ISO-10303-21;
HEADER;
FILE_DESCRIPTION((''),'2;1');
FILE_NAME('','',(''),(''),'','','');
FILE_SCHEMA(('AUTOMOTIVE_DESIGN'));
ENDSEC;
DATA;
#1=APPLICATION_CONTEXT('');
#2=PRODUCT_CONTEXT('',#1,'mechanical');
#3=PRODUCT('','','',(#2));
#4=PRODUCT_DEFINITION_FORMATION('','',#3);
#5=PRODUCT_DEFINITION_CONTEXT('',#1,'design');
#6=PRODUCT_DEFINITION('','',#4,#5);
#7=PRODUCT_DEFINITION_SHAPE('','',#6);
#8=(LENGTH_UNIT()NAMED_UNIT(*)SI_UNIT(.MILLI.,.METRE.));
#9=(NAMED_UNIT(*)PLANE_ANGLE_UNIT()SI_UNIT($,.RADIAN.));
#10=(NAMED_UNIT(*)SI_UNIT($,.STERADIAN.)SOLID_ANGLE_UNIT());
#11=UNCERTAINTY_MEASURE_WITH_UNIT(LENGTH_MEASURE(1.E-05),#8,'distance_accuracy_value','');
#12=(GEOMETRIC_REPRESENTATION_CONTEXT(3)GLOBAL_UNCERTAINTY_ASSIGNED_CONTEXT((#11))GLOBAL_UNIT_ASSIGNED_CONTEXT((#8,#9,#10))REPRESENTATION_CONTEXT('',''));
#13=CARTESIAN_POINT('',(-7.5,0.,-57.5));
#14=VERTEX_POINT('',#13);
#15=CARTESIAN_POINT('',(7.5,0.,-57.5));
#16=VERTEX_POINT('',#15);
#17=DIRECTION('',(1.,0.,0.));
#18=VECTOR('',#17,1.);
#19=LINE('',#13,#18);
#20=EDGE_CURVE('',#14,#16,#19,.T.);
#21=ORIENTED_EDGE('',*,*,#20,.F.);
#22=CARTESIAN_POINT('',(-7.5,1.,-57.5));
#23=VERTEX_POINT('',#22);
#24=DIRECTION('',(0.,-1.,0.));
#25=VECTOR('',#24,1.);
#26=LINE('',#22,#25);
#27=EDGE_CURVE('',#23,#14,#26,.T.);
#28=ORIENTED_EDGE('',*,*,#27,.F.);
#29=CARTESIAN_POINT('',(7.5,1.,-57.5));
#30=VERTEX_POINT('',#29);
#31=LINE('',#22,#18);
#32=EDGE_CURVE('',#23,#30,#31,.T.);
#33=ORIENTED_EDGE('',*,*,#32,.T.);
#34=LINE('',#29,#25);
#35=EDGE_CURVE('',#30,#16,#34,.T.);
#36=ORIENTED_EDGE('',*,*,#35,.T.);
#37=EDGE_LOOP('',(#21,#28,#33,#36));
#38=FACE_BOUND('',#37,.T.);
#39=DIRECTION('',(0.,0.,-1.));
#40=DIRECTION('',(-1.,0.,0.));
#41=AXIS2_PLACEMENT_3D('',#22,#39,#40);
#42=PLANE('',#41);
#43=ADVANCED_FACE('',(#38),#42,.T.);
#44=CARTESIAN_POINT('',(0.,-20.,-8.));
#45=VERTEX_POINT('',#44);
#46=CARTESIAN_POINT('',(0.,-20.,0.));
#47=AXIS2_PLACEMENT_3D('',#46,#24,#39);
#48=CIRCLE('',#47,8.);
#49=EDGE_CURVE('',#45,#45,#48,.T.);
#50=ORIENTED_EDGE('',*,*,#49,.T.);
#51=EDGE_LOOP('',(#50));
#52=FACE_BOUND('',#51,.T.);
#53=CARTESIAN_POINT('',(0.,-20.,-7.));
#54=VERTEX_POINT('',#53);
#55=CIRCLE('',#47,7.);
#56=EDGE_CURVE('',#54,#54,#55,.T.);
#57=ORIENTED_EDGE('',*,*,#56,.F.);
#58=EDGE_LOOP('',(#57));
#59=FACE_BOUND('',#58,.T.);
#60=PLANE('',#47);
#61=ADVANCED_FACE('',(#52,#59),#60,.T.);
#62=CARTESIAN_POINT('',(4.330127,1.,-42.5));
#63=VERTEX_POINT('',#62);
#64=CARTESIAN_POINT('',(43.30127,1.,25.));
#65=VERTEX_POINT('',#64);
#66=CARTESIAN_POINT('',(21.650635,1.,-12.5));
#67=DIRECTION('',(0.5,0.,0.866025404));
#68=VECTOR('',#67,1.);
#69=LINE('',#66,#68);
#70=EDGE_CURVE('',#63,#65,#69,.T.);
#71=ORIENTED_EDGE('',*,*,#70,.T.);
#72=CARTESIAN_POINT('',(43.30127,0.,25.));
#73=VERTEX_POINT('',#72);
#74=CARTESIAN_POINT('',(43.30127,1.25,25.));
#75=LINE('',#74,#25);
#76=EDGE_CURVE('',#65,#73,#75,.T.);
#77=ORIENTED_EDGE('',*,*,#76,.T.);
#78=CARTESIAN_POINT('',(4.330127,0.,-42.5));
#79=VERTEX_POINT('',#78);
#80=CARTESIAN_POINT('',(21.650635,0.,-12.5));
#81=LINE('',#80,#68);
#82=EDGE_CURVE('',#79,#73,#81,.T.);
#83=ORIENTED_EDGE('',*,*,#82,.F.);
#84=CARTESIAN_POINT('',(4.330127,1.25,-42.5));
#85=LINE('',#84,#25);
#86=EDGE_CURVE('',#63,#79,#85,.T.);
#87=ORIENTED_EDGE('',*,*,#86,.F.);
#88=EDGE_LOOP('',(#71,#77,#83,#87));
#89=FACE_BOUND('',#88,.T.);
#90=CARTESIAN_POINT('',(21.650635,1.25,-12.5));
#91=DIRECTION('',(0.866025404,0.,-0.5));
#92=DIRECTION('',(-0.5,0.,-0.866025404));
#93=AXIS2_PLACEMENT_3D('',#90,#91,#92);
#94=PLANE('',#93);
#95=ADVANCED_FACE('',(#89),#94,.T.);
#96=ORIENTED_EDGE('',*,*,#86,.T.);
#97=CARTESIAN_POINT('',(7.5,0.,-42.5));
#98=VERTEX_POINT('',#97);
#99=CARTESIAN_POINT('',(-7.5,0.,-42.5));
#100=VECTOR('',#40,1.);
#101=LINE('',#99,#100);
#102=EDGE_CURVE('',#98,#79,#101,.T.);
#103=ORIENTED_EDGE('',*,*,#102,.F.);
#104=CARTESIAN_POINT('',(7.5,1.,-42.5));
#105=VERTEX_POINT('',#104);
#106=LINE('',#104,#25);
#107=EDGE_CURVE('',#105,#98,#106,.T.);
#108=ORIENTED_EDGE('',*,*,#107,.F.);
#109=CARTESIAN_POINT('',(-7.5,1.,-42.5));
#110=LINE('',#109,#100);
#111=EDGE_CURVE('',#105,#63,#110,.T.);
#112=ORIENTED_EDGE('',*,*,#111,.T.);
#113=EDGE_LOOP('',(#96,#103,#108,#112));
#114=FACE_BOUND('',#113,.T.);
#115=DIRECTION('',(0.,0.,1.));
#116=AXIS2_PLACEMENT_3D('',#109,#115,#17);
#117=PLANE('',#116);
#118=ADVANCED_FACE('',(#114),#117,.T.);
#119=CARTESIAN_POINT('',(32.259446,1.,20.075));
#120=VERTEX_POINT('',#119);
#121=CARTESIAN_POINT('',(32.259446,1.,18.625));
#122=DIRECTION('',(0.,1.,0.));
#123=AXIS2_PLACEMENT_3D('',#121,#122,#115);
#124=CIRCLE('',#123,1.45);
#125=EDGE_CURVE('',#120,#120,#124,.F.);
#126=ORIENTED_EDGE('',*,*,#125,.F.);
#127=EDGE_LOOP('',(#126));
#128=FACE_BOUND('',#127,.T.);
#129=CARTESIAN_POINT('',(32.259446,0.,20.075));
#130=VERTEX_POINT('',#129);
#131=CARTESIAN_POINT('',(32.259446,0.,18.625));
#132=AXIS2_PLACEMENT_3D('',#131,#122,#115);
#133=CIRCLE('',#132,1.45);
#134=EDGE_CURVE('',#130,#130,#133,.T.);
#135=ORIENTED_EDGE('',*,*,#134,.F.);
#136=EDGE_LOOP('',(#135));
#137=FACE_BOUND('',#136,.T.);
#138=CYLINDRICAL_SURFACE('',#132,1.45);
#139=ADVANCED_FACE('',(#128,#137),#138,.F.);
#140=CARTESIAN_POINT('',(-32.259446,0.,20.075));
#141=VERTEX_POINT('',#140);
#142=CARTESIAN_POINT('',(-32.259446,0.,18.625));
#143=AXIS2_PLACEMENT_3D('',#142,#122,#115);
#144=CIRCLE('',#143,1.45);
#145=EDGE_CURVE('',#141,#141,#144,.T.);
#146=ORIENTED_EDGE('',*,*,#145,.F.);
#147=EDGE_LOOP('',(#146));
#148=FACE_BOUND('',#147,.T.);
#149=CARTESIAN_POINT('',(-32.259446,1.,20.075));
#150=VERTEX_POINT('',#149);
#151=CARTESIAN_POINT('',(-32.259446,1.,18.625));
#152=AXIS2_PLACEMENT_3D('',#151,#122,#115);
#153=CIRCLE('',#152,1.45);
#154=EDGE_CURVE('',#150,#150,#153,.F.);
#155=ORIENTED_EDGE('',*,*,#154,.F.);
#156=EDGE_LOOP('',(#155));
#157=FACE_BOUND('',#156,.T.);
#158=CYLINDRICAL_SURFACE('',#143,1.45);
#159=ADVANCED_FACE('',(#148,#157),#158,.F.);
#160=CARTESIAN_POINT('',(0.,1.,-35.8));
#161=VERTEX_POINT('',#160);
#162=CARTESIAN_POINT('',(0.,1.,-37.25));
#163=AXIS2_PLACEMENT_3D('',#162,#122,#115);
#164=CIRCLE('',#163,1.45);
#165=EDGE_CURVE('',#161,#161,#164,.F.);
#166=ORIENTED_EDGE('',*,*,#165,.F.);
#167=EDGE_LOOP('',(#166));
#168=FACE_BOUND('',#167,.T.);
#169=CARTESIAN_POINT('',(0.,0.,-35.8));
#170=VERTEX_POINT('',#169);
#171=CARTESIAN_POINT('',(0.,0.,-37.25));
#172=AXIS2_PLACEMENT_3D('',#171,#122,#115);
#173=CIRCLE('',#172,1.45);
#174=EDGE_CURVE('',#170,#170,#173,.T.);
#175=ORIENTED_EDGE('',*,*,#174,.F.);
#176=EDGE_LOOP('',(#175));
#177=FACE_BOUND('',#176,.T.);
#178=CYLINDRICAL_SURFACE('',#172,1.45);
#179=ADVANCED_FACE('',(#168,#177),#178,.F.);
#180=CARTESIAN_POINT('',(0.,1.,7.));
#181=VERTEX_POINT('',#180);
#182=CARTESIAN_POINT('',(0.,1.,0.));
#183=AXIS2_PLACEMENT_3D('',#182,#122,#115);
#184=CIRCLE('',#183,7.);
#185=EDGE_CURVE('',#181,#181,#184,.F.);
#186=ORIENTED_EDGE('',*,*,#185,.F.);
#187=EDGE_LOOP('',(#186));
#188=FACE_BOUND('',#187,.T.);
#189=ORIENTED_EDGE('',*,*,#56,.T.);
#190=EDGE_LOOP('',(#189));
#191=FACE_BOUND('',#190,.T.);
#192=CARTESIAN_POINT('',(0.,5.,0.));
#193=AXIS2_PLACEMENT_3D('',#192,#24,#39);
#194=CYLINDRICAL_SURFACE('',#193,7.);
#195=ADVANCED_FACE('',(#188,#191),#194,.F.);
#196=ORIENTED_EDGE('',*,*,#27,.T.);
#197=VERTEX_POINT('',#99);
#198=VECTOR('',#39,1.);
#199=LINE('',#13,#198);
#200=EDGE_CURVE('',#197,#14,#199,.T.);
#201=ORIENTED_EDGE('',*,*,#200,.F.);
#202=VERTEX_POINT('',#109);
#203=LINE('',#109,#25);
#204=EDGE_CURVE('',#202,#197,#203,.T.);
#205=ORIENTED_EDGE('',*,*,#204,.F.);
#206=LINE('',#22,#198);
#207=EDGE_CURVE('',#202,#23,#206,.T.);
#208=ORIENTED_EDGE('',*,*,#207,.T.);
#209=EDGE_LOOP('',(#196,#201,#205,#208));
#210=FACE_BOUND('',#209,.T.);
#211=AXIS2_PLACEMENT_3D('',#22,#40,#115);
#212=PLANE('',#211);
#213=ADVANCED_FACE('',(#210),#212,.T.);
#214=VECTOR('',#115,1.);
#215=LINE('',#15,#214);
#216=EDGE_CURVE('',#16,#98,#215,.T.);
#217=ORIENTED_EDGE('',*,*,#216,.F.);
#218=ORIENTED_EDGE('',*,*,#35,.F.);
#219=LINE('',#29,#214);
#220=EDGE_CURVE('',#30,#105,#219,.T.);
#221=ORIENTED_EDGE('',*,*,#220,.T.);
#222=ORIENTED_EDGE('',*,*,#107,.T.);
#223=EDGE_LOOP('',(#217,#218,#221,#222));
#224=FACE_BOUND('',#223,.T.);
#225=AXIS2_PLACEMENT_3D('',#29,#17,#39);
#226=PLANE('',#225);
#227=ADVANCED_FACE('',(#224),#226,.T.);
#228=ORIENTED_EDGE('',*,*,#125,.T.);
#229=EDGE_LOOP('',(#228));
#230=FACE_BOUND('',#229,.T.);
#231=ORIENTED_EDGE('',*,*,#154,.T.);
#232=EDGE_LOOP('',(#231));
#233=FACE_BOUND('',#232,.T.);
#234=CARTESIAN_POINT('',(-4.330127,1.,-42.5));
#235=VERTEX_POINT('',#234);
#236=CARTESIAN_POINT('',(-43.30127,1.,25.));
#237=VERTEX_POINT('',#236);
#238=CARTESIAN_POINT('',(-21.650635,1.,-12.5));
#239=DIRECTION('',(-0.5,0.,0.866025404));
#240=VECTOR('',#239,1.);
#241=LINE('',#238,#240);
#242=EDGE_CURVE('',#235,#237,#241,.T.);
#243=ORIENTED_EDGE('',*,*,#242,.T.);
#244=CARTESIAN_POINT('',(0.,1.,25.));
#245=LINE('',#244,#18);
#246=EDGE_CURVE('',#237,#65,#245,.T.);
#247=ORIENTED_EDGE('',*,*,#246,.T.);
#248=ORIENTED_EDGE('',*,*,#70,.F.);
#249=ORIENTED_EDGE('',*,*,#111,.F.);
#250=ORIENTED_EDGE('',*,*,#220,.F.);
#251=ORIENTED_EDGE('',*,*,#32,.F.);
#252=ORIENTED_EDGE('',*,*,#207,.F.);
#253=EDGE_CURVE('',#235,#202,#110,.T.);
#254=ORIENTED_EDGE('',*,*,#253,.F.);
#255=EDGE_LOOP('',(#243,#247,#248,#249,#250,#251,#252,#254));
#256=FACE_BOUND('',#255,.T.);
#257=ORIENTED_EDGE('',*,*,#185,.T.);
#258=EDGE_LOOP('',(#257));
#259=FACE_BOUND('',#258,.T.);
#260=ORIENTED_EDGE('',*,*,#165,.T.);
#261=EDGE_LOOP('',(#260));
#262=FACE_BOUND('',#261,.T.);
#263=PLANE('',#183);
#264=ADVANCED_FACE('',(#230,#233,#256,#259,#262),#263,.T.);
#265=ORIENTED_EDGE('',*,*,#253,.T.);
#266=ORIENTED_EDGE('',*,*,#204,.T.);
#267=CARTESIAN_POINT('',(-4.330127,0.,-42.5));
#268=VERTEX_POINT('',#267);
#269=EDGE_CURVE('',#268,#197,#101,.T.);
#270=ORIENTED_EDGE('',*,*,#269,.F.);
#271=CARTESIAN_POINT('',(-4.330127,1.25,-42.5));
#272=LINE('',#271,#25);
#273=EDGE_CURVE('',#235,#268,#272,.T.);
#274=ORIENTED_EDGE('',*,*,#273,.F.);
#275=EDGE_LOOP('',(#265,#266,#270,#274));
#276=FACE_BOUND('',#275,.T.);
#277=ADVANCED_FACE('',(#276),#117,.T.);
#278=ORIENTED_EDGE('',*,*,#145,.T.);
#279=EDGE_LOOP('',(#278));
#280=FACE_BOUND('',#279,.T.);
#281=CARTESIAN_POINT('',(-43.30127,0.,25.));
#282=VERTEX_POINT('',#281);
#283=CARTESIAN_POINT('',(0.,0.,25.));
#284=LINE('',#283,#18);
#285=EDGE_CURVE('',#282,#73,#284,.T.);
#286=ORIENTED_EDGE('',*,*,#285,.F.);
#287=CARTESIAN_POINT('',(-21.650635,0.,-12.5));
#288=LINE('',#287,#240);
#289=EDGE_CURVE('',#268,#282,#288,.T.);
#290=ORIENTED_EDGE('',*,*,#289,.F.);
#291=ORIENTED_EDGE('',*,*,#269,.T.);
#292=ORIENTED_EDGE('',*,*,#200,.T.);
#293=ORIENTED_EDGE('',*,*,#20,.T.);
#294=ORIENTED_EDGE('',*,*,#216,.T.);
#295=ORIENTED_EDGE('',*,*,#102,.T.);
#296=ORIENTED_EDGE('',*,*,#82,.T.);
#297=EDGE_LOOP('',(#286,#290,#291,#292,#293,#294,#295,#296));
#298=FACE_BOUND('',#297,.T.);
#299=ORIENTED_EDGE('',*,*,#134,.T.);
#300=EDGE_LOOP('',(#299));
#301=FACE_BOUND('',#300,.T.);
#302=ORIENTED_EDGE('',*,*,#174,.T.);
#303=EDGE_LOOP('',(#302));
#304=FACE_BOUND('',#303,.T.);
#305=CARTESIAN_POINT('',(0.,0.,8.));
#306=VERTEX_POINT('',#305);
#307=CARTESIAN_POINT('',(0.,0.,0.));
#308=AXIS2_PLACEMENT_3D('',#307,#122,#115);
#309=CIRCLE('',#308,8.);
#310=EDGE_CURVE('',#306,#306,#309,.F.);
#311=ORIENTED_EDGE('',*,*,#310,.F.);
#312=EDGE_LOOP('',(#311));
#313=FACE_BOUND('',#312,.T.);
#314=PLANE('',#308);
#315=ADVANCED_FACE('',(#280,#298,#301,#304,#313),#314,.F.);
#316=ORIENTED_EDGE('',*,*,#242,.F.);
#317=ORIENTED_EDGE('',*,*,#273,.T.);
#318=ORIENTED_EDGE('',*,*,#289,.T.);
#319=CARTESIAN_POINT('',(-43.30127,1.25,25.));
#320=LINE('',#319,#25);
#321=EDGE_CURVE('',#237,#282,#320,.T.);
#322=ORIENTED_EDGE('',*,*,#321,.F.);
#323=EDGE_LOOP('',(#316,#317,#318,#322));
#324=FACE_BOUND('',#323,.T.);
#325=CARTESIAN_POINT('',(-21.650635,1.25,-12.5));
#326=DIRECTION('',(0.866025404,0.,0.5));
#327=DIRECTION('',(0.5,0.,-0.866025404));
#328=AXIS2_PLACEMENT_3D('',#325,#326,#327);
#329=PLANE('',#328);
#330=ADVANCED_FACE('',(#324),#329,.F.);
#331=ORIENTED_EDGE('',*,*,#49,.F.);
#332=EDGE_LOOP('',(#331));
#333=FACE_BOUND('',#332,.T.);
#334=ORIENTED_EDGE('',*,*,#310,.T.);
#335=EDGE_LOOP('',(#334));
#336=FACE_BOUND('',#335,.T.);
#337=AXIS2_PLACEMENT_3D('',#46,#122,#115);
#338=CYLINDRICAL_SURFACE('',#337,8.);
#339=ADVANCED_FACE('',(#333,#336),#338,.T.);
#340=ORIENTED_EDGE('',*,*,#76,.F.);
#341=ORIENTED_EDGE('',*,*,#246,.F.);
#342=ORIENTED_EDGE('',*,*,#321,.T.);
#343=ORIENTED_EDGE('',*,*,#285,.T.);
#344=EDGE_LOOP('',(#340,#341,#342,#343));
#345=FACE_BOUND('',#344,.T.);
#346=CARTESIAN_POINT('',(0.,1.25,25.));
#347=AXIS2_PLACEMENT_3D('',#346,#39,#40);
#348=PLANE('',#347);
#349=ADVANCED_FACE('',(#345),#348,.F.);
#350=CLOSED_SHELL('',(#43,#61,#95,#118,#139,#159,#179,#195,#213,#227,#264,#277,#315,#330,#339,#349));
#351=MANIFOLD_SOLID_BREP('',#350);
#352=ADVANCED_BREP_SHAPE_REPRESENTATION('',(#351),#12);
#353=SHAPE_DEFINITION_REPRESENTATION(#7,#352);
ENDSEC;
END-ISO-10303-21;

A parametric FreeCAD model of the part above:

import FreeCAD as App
import Part
import Sketcher

V = App.Vector
Q = App.Units.Quantity


def add_polygon(sketch, points):
    """Adds a closed chain of lines whose ends are joined by coincident constraints."""
    first, n = sketch.GeometryCount, len(points)
    for a, b in zip(points, points[1:] + points[:1]):
        sketch.addGeometry(Part.LineSegment(App.Vector(*a, 0), App.Vector(*b, 0)), False)
    for i in range(n):
        sketch.addConstraint(Sketcher.Constraint("Coincident", first + i, 2, first + (i + 1) % n, 1))

doc = App.newDocument("Part")
body = doc.addObject("PartDesign::Body", "Body")

sketch1 = doc.addObject("Sketcher::SketchObject", "Sketch")
body.addObject(sketch1)
sketch1.AttachmentSupport = (doc.XZ_Plane, [""])
sketch1.MapMode = "FlatFace"
add_polygon(sketch1, [(43, 25), (0, -50), (-43, 25)])
sketch1.addConstraint([
    Sketcher.Constraint("Horizontal", 2),
    Sketcher.Constraint("PointOnObject", 0, 2, -2),
    Sketcher.Constraint("Equal", 0, 1),
    Sketcher.Constraint("Angle", 0, Q("-120 deg")),
    Sketcher.Constraint("DistanceY", 0, 2, -1, 1, Q("50 mm")),
    Sketcher.Constraint("DistanceY", -1, 1, 1, 2, Q("25 mm")),
])
pad1 = doc.addObject("PartDesign::Pad", "Pad")
body.addObject(pad1)
pad1.Profile = sketch1
pad1.Length = 1.25
pad1.Reversed = True

sketch2 = doc.addObject("Sketcher::SketchObject", "Sketch001")
body.addObject(sketch2)
sketch2.AttachmentSupport = (doc.XZ_Plane, [""])
sketch2.MapMode = "FlatFace"
sketch2.AttachmentOffset = App.Placement(V(0, 0, -1.25), App.Rotation())
sketch2.addGeometry([
    Part.Circle(V(0, -37.2, 0), V(0, 0, 1), 1.4),
    Part.Circle(V(-32.3, 18.6, 0), V(0, 0, 1), 1.4),
    Part.Circle(V(32.3, 18.6, 0), V(0, 0, 1), 1.4),
], False)
sketch2.addConstraint([
    Sketcher.Constraint("Equal", 0, 1),
    Sketcher.Constraint("Equal", 1, 2),
    Sketcher.Constraint("Symmetric", 1, 3, 2, 3, -2),
    Sketcher.Constraint("PointOnObject", 0, 3, -2),
    Sketcher.Constraint("Diameter", 0, Q("2.9 mm")),
    Sketcher.Constraint("DistanceY", 0, 3, -1, 1, Q("37.25 mm")),
    Sketcher.Constraint("DistanceY", -1, 1, 1, 3, Q("18.625 mm")),
    Sketcher.Constraint("DistanceX", 1, 3, -1, 1, Q("32.259446 mm")),
])
pocket1 = doc.addObject("PartDesign::Pocket", "Pocket")
body.addObject(pocket1)
pocket1.Profile = sketch2
pocket1.Length = 1.25
pocket1.Reversed = True

sketch3 = doc.addObject("Sketcher::SketchObject", "Sketch002")
body.addObject(sketch3)
sketch3.AttachmentSupport = (doc.XZ_Plane, [""])
sketch3.MapMode = "FlatFace"
sketch3.addGeometry(Part.Circle(V(0, 0, 0), V(0, 0, 1), 8), False)
sketch3.addConstraint([
    Sketcher.Constraint("Coincident", 0, 3, -1, 1),
    Sketcher.Constraint("Diameter", 0, Q("16 mm")),
])
pad2 = doc.addObject("PartDesign::Pad", "Pad001")
body.addObject(pad2)
pad2.Profile = sketch3
pad2.Length = 20

sketch4 = doc.addObject("Sketcher::SketchObject", "Sketch003")
body.addObject(sketch4)
sketch4.AttachmentSupport = (doc.XZ_Plane, [""])
sketch4.MapMode = "FlatFace"
sketch4.AttachmentOffset = App.Placement(V(0, 0, 20), App.Rotation())
sketch4.addGeometry(Part.Circle(V(0, 0, 0), V(0, 0, 1), 6), False)
sketch4.addConstraint([
    Sketcher.Constraint("Coincident", 0, 3, -1, 1),
    Sketcher.Constraint("Diameter", 0, Q("12 mm")),
])
pocket2 = doc.addObject("PartDesign::Pocket", "Pocket001")
body.addObject(pocket2)
pocket2.Profile = sketch4
pocket2.Length = 30

sketch5 = doc.addObject("Sketcher::SketchObject", "Sketch004")
body.addObject(sketch5)
sketch5.AttachmentSupport = (doc.XZ_Plane, [""])
sketch5.MapMode = "FlatFace"
sketch5.AttachmentOffset = App.Placement(V(0, 0, 20), App.Rotation())
sketch5.addGeometry(Part.Circle(V(0, 0, 0), V(0, 0, 1), 7), False)
sketch5.addConstraint([
    Sketcher.Constraint("Coincident", 0, 3, -1, 1),
    Sketcher.Constraint("Diameter", 0, Q("14 mm")),
])
pocket3 = doc.addObject("PartDesign::Pocket", "Pocket002")
body.addObject(pocket3)
pocket3.Profile = sketch5
pocket3.Length = 25

sketch6 = doc.addObject("Sketcher::SketchObject", "Sketch005")
body.addObject(sketch6)
sketch6.AttachmentSupport = (doc.XZ_Plane, [""])
sketch6.MapMode = "FlatFace"
sketch6.AttachmentOffset = App.Placement(V(0, 0, -1.25), App.Rotation())
sketch6.addGeometry(Part.Circle(V(0, 0, 0), V(0, 0, 1), 52), False)
sketch6.addConstraint([
    Sketcher.Constraint("Coincident", 0, 3, -1, 1),
    Sketcher.Constraint("Diameter", 0, Q("104.167865 mm")),
])
pocket4 = doc.addObject("PartDesign::Pocket", "Pocket003")
body.addObject(pocket4)
pocket4.Profile = sketch6
pocket4.Length = 0.25
pocket4.Reversed = True

sketch7 = doc.addObject("Sketcher::SketchObject", "Sketch006")
body.addObject(sketch7)
sketch7.AttachmentSupport = (doc.XZ_Plane, [""])
sketch7.MapMode = "FlatFace"
add_polygon(sketch7, [(-8, -42), (-8, -58), (8, -58), (8, -42)])
sketch7.addConstraint([
    Sketcher.Constraint("Vertical", 0),
    Sketcher.Constraint("Horizontal", 1),
    Sketcher.Constraint("Vertical", 2),
    Sketcher.Constraint("Horizontal", 3),
    Sketcher.Constraint("Equal", 3, 0),
    Sketcher.Constraint("DistanceX", 1, 1, 1, 2, Q("15 mm")),
    Sketcher.Constraint("DistanceX", 0, 2, -1, 1, Q("7.5 mm")),
    Sketcher.Constraint("DistanceY", 0, 2, -1, 1, Q("57.5 mm")),
])
pad3 = doc.addObject("PartDesign::Pad", "Pad002")
body.addObject(pad3)
pad3.Profile = sketch7
pad3.Length = 1
pad3.Reversed = True

doc.recompute()
